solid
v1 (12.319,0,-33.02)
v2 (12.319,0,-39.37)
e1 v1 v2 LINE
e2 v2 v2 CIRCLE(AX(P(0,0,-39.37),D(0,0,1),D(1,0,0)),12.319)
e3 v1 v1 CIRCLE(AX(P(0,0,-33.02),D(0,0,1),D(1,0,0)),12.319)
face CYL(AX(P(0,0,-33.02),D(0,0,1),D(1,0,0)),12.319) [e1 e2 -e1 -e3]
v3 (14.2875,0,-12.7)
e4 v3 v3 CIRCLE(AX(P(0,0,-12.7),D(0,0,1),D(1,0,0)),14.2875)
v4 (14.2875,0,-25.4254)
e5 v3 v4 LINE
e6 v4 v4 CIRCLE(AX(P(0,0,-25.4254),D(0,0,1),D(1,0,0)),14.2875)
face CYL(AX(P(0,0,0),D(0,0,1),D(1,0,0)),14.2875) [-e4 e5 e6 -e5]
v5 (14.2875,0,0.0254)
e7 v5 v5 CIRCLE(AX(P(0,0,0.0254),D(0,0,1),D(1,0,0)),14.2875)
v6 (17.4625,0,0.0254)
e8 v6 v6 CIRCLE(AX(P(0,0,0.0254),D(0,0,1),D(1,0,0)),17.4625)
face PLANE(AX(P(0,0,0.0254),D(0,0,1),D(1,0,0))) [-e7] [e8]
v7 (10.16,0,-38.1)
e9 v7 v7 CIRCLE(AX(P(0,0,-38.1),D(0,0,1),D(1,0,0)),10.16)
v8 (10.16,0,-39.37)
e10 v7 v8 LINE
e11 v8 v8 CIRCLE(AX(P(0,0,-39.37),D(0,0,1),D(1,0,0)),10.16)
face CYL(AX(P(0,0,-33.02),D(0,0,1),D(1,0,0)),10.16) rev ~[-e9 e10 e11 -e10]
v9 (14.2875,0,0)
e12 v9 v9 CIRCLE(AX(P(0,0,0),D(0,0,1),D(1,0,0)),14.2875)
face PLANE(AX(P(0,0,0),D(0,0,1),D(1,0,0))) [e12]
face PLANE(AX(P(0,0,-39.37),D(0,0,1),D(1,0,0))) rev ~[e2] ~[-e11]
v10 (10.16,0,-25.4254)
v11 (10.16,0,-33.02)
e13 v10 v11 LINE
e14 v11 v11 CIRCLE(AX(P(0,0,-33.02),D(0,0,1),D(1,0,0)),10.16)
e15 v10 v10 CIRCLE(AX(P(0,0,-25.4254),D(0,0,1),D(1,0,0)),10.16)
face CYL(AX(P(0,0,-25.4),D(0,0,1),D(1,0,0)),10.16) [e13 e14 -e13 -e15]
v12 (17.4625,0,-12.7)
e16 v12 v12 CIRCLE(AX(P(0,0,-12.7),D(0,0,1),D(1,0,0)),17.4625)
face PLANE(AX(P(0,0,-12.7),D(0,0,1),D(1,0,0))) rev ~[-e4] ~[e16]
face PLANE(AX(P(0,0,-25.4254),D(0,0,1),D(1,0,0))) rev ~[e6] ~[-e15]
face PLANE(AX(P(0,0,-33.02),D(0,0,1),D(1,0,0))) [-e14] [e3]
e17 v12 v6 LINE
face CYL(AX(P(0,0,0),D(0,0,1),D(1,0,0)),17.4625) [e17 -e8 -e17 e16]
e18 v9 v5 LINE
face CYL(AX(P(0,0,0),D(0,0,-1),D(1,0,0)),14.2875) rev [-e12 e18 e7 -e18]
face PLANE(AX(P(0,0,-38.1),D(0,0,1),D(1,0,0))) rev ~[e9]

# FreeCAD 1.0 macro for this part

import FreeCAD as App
import Part
import Sketcher
from FreeCAD import Vector
Q = App.Units.Quantity

doc = App.newDocument("Part")
body = doc.addObject("PartDesign::Body", "Body")

sketch1 = body.newObject("Sketcher::SketchObject", "Sketch")
sketch1.AttachmentSupport = (doc.getObject("XY_Plane"), [""])
sketch1.MapMode = "FlatFace"
sketch1.addGeometry(Part.Circle(Vector(0, 0, 0), Vector(0, 0, 1), 14.2875), False)
sketch1.addConstraint([
    Sketcher.Constraint("Coincident", 0, 3, -1, 1),
    Sketcher.Constraint("Diameter", 0, Q("1.125 in")),
])
pad1 = body.newObject("PartDesign::Pad", "Pad")
pad1.Profile = sketch1
pad1.Length = Q("1.001 in")
pad1.Reversed = True

sketch2 = body.newObject("Sketcher::SketchObject", "Sketch001")
sketch2.AttachmentSupport = (doc.getObject("XY_Plane"), [""])
sketch2.MapMode = "FlatFace"
sketch2.addGeometry([
    Part.Circle(Vector(0, 0, 0), Vector(0, 0, 1), 17.4625),
    Part.Circle(Vector(0, 0, 0), Vector(0, 0, 1), 14.2875),
], False)
sketch2.addConstraint([
    Sketcher.Constraint("Coincident", 0, 3, -1, 1),
    Sketcher.Constraint("Coincident", 1, 3, -1, 1),
    Sketcher.Constraint("Diameter", 0, Q("1.375 in")),
    Sketcher.Constraint("Diameter", 1, Q("1.125 in")),
])
pad2 = body.newObject("PartDesign::Pad", "Pad001")
pad2.Profile = sketch2
pad2.Type = "TwoLengths"
pad2.Length = Q("0.5 in")
pad2.Length2 = Q("0.001 in")
pad2.Reversed = True

sketch3 = body.newObject("Sketcher::SketchObject", "Sketch002")
sketch3.AttachmentSupport = (doc.getObject("XY_Plane"), [""])
sketch3.MapMode = "FlatFace"
sketch3.AttachmentOffset = App.Placement(Vector(0, 0, -1 * 25.4), App.Rotation())
sketch3.addGeometry(Part.Circle(Vector(0, 0, 0), Vector(0, 0, 1), 10.16), False)
sketch3.addConstraint([
    Sketcher.Constraint("Coincident", 0, 3, -1, 1),
    Sketcher.Constraint("Diameter", 0, Q("0.8 in")),
])
pad3 = body.newObject("PartDesign::Pad", "Pad002")
pad3.Profile = sketch3
pad3.Length = Q("0.5 in")
pad3.Reversed = True

sketch4 = body.newObject("Sketcher::SketchObject", "Sketch003")
sketch4.AttachmentSupport = (doc.getObject("XY_Plane"), [""])
sketch4.MapMode = "FlatFace"
sketch4.AttachmentOffset = App.Placement(Vector(0, 0, -1.3 * 25.4), App.Rotation())
sketch4.addGeometry([
    Part.Circle(Vector(0, 0, 0), Vector(0, 0, 1), 12.319),
    Part.Circle(Vector(0, 0, 0), Vector(0, 0, 1), 10.16),
], False)
sketch4.addConstraint([
    Sketcher.Constraint("Coincident", 0, 3, -1, 1),
    Sketcher.Constraint("Coincident", 1, 3, -1, 1),
    Sketcher.Constraint("Diameter", 1, Q("0.8 in")),
    Sketcher.Constraint("Diameter", 0, Q("0.97 in")),
])
pad4 = body.newObject("PartDesign::Pad", "Pad003")
pad4.Profile = sketch4
pad4.Length = Q("0.25 in")
pad4.Reversed = True

doc.recompute()
